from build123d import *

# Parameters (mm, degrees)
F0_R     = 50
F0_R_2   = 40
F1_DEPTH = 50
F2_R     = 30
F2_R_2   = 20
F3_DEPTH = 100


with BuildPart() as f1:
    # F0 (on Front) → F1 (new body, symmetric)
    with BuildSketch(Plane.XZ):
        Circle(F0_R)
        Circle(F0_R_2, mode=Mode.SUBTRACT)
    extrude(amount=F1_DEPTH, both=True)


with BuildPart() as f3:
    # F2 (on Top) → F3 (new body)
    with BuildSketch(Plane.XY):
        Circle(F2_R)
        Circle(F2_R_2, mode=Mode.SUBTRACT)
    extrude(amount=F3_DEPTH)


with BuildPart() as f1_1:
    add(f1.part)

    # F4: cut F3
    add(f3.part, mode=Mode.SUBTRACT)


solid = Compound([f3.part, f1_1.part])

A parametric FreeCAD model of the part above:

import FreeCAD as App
import Part
import Sketcher

V = App.Vector
Q = App.Units.Quantity

doc = App.newDocument("Part")
body = doc.addObject("PartDesign::Body", "Body")

sketch1 = body.newObject("Sketcher::SketchObject", "Sketch")
sketch1.AttachmentSupport = (doc.getObject("XZ_Plane"), [""])
sketch1.MapMode = "FlatFace"
sketch1.addGeometry(Part.Circle(V(0, 0, 0), V(0, 0, 1), 50), False)
sketch1.addGeometry(Part.Circle(V(0, 0, 0), V(0, 0, 1), 40), False)
sketch1.addConstraint(Sketcher.Constraint("Coincident", 0, 3, -1, 1))
sketch1.addConstraint(Sketcher.Constraint("Coincident", 1, 3, -1, 1))
sketch1.addConstraint(Sketcher.Constraint("Diameter", 0, Q("100 mm")))
sketch1.addConstraint(Sketcher.Constraint("Diameter", 1, Q("80 mm")))
pad1 = body.newObject("PartDesign::Pad", "Pad")
pad1.Profile = sketch1
pad1.Length = 100
pad1.Midplane = True
body2 = doc.addObject("PartDesign::Body", "Body001")

sketch2 = body2.newObject("Sketcher::SketchObject", "Sketch001")
sketch2.AttachmentSupport = (doc.getObject("XY_Plane001"), [""])
sketch2.MapMode = "FlatFace"
sketch2.addGeometry(Part.Circle(V(0, 0, 0), V(0, 0, 1), 30), False)
sketch2.addGeometry(Part.Circle(V(0, 0, 0), V(0, 0, 1), 20), False)
sketch2.addConstraint(Sketcher.Constraint("Coincident", 0, 3, -1, 1))
sketch2.addConstraint(Sketcher.Constraint("Coincident", 1, 3, -1, 1))
sketch2.addConstraint(Sketcher.Constraint("Diameter", 0, Q("60 mm")))
sketch2.addConstraint(Sketcher.Constraint("Diameter", 1, Q("40 mm")))
pad2 = body2.newObject("PartDesign::Pad", "Pad001")
pad2.Profile = sketch2
pad2.Length = 100
body.AllowCompound = True
doc.recompute()

body3 = doc.addObject("PartDesign::Body", "Body002")
body3.BaseFeature = body2
boolean = body.newObject("PartDesign::Boolean", "Boolean")
boolean.Type = "Cut"
boolean.addObjects([body3])
doc.recompute()

doc.recompute()
